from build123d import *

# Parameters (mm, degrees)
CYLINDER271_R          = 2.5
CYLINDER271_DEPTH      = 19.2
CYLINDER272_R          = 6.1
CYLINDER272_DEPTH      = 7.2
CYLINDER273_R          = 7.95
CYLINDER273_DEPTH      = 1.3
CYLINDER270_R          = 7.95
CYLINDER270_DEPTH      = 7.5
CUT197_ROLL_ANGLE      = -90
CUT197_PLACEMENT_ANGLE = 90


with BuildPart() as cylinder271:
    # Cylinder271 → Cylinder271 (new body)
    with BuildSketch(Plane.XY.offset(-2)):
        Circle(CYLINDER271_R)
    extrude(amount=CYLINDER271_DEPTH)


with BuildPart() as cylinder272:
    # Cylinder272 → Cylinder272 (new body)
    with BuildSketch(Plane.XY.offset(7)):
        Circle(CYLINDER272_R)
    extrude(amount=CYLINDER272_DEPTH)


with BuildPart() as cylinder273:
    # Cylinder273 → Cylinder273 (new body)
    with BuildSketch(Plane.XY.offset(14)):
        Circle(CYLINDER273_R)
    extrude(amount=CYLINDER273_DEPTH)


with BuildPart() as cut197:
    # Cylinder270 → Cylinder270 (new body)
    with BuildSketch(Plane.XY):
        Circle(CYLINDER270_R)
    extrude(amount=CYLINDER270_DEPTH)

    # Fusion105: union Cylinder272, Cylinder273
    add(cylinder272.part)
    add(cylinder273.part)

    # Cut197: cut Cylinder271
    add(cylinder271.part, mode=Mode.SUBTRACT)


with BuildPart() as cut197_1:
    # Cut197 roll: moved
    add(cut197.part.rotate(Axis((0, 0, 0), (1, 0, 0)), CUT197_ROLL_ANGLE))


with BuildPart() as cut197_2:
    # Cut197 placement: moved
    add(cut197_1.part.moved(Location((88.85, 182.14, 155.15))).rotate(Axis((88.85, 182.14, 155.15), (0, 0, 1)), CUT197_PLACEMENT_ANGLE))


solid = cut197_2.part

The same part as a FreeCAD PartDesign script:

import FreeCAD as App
import Part
import Sketcher

doc = App.newDocument("Part")
body = doc.addObject("PartDesign::Body", "Body")

sketch1 = body.newObject("Sketcher::SketchObject", "Sketch")
sketch1.AttachmentSupport = (doc.getObject("XY_Plane"), [""])
sketch1.MapMode = "FlatFace"
sketch1.AttachmentOffset = App.Placement(App.Vector(0, 0, -2), App.Rotation())
sketch1.addGeometry(Part.Circle(App.Vector(0, 0, 0), App.Vector(0, 0, 1), 2.5), False)
sketch1.addConstraint([
    Sketcher.Constraint("Coincident", 0, 3, -1, 1),
    Sketcher.Constraint("Diameter", 0, 5.0),
])
pad1 = body.newObject("PartDesign::Pad", "Pad")
pad1.Profile = sketch1
pad1.Length = 19.2
body2 = doc.addObject("PartDesign::Body", "Body001")

sketch2 = body2.newObject("Sketcher::SketchObject", "Sketch001")
sketch2.AttachmentSupport = (doc.getObject("XY_Plane001"), [""])
sketch2.MapMode = "FlatFace"
sketch2.AttachmentOffset = App.Placement(App.Vector(0, 0, 7), App.Rotation())
sketch2.addGeometry(Part.Circle(App.Vector(0, 0, 0), App.Vector(0, 0, 1), 6), False)
sketch2.addConstraint([
    Sketcher.Constraint("Coincident", 0, 3, -1, 1),
    Sketcher.Constraint("Diameter", 0, 12.2),
])
pad2 = body2.newObject("PartDesign::Pad", "Pad001")
pad2.Profile = sketch2
pad2.Length = 7.2
body3 = doc.addObject("PartDesign::Body", "Body002")

sketch3 = body3.newObject("Sketcher::SketchObject", "Sketch002")
sketch3.AttachmentSupport = (doc.getObject("XY_Plane002"), [""])
sketch3.MapMode = "FlatFace"
sketch3.AttachmentOffset = App.Placement(App.Vector(0, 0, 14), App.Rotation())
sketch3.addGeometry(Part.Circle(App.Vector(0, 0, 0), App.Vector(0, 0, 1), 8), False)
sketch3.addConstraint([
    Sketcher.Constraint("Coincident", 0, 3, -1, 1),
    Sketcher.Constraint("Diameter", 0, 15.9),
])
pad3 = body3.newObject("PartDesign::Pad", "Pad002")
pad3.Profile = sketch3
pad3.Length = 1.3
body4 = doc.addObject("PartDesign::Body", "Body003")

sketch4 = body4.newObject("Sketcher::SketchObject", "Sketch003")
sketch4.AttachmentSupport = (doc.getObject("XY_Plane003"), [""])
sketch4.MapMode = "FlatFace"
sketch4.addGeometry(Part.Circle(App.Vector(0, 0, 0), App.Vector(0, 0, 1), 8), False)
sketch4.addConstraint([
    Sketcher.Constraint("Coincident", 0, 3, -1, 1),
    Sketcher.Constraint("Diameter", 0, 15.9),
])
pad4 = body4.newObject("PartDesign::Pad", "Pad003")
pad4.Profile = sketch4
pad4.Length = 7.5
doc.recompute()

boolean = body4.newObject("PartDesign::Boolean", "Boolean")
boolean.Type = "Fuse"
boolean.addObjects([body2])
doc.recompute()

boolean2 = body4.newObject("PartDesign::Boolean", "Boolean001")
boolean2.Type = "Fuse"
boolean2.addObjects([body3])
doc.recompute()

boolean3 = body4.newObject("PartDesign::Boolean", "Boolean002")
boolean3.Type = "Cut"
boolean3.addObjects([body])
body5 = doc.addObject("PartDesign::Body", "Body004")
doc.recompute()

body4.Placement = App.Placement(App.Vector(0, 0, 0), App.Rotation(App.Vector(1, 0, 0), 270))
boolean4 = body5.newObject("PartDesign::Boolean", "Boolean003")
boolean4.Type = "Fuse"
boolean4.addObjects([body4])
body6 = doc.addObject("PartDesign::Body", "Body005")
doc.recompute()

body5.Placement = App.Placement(App.Vector(88.85, 182.14, 155.15), App.Rotation(App.Vector(0, 0, 1), 90))
boolean5 = body6.newObject("PartDesign::Boolean", "Boolean004")
boolean5.Type = "Fuse"
boolean5.addObjects([body5])

doc.recompute()
